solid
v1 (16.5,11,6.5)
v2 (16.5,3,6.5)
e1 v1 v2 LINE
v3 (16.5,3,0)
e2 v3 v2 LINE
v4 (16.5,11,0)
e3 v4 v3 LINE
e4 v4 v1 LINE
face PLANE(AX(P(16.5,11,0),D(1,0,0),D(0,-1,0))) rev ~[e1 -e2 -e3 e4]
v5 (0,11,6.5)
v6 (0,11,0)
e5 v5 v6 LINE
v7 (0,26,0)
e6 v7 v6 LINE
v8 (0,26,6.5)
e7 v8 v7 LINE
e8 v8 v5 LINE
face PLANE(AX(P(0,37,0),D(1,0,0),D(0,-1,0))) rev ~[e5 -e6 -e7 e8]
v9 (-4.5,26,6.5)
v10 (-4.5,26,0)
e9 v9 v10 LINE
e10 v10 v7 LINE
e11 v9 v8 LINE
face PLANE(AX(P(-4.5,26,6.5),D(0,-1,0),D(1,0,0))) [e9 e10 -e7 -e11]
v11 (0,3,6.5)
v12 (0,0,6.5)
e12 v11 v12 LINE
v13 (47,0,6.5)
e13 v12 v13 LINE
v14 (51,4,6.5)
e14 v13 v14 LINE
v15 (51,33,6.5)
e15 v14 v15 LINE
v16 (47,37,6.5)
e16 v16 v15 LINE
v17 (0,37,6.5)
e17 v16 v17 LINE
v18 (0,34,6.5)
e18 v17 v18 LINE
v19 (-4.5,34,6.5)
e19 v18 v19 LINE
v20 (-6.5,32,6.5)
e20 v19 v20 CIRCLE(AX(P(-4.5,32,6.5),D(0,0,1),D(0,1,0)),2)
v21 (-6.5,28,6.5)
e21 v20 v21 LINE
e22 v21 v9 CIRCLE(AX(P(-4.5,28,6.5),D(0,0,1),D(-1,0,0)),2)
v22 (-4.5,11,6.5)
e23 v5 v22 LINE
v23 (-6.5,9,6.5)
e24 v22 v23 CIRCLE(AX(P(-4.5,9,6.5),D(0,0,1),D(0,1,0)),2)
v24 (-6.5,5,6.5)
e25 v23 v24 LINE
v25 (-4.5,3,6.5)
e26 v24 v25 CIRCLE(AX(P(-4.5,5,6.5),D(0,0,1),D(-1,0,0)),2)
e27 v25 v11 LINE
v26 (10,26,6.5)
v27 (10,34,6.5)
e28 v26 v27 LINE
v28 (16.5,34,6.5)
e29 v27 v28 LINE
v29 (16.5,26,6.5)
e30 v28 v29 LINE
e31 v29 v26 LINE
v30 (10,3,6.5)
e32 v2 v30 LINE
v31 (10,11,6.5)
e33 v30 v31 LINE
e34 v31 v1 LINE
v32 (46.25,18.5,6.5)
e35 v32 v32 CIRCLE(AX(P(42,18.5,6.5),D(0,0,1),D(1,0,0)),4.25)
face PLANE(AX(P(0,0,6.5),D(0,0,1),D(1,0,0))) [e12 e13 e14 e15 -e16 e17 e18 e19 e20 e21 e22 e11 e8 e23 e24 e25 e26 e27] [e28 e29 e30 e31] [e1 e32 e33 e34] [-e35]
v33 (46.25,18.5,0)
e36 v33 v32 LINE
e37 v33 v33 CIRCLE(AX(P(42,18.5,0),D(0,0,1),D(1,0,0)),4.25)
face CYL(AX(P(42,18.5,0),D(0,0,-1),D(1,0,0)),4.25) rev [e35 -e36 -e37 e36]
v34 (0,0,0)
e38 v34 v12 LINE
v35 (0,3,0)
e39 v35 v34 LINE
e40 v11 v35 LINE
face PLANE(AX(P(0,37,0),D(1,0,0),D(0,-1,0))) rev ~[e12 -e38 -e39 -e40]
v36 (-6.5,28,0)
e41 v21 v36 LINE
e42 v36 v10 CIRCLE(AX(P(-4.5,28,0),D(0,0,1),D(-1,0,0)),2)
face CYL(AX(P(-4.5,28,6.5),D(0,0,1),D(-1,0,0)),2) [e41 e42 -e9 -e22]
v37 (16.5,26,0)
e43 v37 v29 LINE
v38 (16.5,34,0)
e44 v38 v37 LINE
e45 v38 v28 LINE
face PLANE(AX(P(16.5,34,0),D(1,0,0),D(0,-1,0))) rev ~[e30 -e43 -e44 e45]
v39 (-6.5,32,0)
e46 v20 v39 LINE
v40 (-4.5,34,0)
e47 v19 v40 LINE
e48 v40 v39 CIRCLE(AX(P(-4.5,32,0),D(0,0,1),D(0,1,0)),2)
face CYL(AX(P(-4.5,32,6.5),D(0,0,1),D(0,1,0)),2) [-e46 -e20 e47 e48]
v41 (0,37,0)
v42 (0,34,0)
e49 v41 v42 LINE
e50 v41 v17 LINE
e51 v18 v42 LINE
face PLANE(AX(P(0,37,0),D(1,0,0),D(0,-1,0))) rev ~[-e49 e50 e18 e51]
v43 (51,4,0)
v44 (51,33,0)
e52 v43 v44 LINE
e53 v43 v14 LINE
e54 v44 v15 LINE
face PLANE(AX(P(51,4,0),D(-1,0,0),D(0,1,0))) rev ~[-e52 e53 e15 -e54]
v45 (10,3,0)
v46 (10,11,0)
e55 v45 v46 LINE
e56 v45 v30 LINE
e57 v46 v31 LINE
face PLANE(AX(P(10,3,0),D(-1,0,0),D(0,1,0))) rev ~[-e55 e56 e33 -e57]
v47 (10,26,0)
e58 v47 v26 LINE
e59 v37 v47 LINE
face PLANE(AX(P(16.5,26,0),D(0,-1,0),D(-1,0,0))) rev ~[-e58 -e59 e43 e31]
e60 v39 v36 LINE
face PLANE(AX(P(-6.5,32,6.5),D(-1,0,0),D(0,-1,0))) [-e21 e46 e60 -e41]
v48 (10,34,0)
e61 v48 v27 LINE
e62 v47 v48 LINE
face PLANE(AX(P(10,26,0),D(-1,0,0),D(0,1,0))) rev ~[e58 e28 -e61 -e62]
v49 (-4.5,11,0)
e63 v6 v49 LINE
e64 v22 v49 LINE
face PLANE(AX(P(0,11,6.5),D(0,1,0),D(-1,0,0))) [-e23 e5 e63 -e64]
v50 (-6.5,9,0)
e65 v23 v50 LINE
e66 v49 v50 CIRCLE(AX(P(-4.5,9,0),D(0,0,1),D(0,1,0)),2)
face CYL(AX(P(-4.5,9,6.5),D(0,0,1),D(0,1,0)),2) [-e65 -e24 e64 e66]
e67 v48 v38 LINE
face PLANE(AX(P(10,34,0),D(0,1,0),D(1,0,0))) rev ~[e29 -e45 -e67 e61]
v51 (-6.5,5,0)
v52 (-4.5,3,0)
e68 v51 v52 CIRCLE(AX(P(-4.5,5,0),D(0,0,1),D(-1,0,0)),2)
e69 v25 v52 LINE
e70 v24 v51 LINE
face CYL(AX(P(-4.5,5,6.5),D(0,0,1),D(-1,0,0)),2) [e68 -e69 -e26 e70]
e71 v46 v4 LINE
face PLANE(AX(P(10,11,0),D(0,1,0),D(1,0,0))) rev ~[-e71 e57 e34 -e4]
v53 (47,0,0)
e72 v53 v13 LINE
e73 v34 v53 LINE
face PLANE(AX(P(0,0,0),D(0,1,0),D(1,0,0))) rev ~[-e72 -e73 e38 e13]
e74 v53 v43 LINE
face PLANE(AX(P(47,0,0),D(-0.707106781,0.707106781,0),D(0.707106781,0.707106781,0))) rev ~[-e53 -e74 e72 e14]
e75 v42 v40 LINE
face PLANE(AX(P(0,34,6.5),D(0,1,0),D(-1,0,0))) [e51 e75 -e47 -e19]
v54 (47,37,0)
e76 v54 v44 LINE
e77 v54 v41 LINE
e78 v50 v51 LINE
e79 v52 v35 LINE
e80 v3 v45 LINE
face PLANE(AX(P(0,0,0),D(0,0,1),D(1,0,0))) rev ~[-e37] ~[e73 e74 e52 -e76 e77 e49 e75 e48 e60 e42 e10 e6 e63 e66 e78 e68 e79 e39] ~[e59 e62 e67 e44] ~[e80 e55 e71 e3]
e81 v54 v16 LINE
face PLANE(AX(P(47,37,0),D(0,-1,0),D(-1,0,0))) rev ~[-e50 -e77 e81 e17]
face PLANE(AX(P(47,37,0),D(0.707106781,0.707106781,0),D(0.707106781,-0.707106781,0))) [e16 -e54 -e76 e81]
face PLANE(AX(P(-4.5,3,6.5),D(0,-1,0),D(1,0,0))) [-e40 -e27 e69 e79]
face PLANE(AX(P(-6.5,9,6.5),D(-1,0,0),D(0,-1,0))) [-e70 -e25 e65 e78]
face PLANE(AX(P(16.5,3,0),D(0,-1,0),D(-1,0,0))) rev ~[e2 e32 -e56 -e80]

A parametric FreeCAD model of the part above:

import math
import FreeCAD as App
import Part
import Sketcher

V = App.Vector
Q = App.Units.Quantity

doc = App.newDocument("Part")
body = doc.addObject("PartDesign::Body", "Body")

# Sketch on XY plane
sketch1 = body.newObject("Sketcher::SketchObject", "Sketch")
sketch1.AttachmentSupport = (doc.getObject("XY_Plane"), [""])
sketch1.MapMode = "FlatFace"
sketch1.addGeometry(Part.LineSegment(V(0, 37, 0), V(0, 0, 0)), False)
sketch1.addGeometry(Part.LineSegment(V(0, 0, 0), V(47, 0, 0)), False)
sketch1.addGeometry(Part.LineSegment(V(47, 0, 0), V(51, 4, 0)), False)
sketch1.addGeometry(Part.LineSegment(V(51, 4, 0), V(51, 33, 0)), False)
sketch1.addGeometry(Part.LineSegment(V(51, 33, 0), V(47, 37, 0)), False)
sketch1.addGeometry(Part.LineSegment(V(47, 37, 0), V(0, 37, 0)), False)
sketch1.addGeometry(Part.LineSegment(V(10, 3, 0), V(10, 11, 0)), False)
sketch1.addGeometry(Part.LineSegment(V(10, 11, 0), V(16.5, 11, 0)), False)
sketch1.addGeometry(Part.LineSegment(V(16.5, 11, 0), V(16.5, 3, 0)), False)
sketch1.addGeometry(Part.LineSegment(V(16.5, 3, 0), V(10, 3, 0)), False)
sketch1.addGeometry(Part.LineSegment(V(10, 26, 0), V(10, 34, 0)), False)
sketch1.addGeometry(Part.LineSegment(V(10, 34, 0), V(16.5, 34, 0)), False)
sketch1.addGeometry(Part.LineSegment(V(16.5, 34, 0), V(16.5, 26, 0)), False)
sketch1.addGeometry(Part.LineSegment(V(16.5, 26, 0), V(10, 26, 0)), False)
sketch1.addGeometry(Part.Circle(V(42, 18.5, 0), V(0, 0, 1), 4.25), False)
sketch1.addConstraint(Sketcher.Constraint("Coincident", 0, 2, 1, 1))
sketch1.addConstraint(Sketcher.Constraint("Coincident", 1, 2, 2, 1))
sketch1.addConstraint(Sketcher.Constraint("Coincident", 2, 2, 3, 1))
sketch1.addConstraint(Sketcher.Constraint("Coincident", 3, 2, 4, 1))
sketch1.addConstraint(Sketcher.Constraint("Coincident", 4, 2, 5, 1))
sketch1.addConstraint(Sketcher.Constraint("Coincident", 5, 2, 0, 1))
sketch1.addConstraint(Sketcher.Constraint("Coincident", 6, 2, 7, 1))
sketch1.addConstraint(Sketcher.Constraint("Coincident", 7, 2, 8, 1))
sketch1.addConstraint(Sketcher.Constraint("Coincident", 8, 2, 9, 1))
sketch1.addConstraint(Sketcher.Constraint("Coincident", 9, 2, 6, 1))
sketch1.addConstraint(Sketcher.Constraint("Coincident", 10, 2, 11, 1))
sketch1.addConstraint(Sketcher.Constraint("Coincident", 11, 2, 12, 1))
sketch1.addConstraint(Sketcher.Constraint("Coincident", 12, 2, 13, 1))
sketch1.addConstraint(Sketcher.Constraint("Coincident", 13, 2, 10, 1))
sketch1.addConstraint(Sketcher.Constraint("Vertical", 0))
sketch1.addConstraint(Sketcher.Constraint("Horizontal", 1))
sketch1.addConstraint(Sketcher.Constraint("Vertical", 3))
sketch1.addConstraint(Sketcher.Constraint("Horizontal", 5))
sketch1.addConstraint(Sketcher.Constraint("Vertical", 6))
sketch1.addConstraint(Sketcher.Constraint("Horizontal", 7))
sketch1.addConstraint(Sketcher.Constraint("Vertical", 8))
sketch1.addConstraint(Sketcher.Constraint("Horizontal", 9))
sketch1.addConstraint(Sketcher.Constraint("Vertical", 10))
sketch1.addConstraint(Sketcher.Constraint("Horizontal", 11))
sketch1.addConstraint(Sketcher.Constraint("Vertical", 12))
sketch1.addConstraint(Sketcher.Constraint("Horizontal", 13))
sketch1.addConstraint(Sketcher.Constraint("Coincident", 0, 2, -1, 1))
sketch1.addConstraint(Sketcher.Constraint("Perpendicular", 2, 4))
sketch1.addConstraint(Sketcher.Constraint("Vertical", 1, 2, 4, 2))
sketch1.addConstraint(Sketcher.Constraint("Vertical", 9, 2, 10, 2))
sketch1.addConstraint(Sketcher.Constraint("Vertical", 8, 2, 11, 2))
sketch1.addConstraint(Sketcher.Constraint("Equal", 8, 10))
sketch1.addConstraint(Sketcher.Constraint("Equal", 2, 4))
sketch1.addConstraint(Sketcher.Constraint("Diameter", 14, Q("8.5 mm")))
sketch1.addConstraint(Sketcher.Constraint("DistanceY", 0, 2, 0, 1, Q("37 mm")))
sketch1.addConstraint(Sketcher.Constraint("DistanceY", 6, 1, 6, 2, Q("8 mm")))
sketch1.addConstraint(Sketcher.Constraint("DistanceX", 7, 1, 7, 2, Q("6.5 mm")))
sketch1.addConstraint(Sketcher.Constraint("DistanceX", -1, 1, 14, 3, Q("42 mm")))
sketch1.addConstraint(Sketcher.Constraint("DistanceY", -1, 1, 2, 2, Q("4 mm")))
sketch1.addConstraint(Sketcher.Constraint("DistanceX", -1, 1, 6, 2, Q("10 mm")))
sketch1.addConstraint(Sketcher.Constraint("DistanceX", 14, 3, 2, 2, Q("9 mm")))
sketch1.addConstraint(Sketcher.Constraint("DistanceY", 7, 2, 12, 2, Q("15 mm")))
sketch1.addConstraint(Sketcher.Constraint("DistanceY", -1, 1, 6, 2, Q("11 mm")))
sketch1.addConstraint(Sketcher.Constraint("DistanceY", -1, 1, 14, 3, Q("18.5 mm")))
pad1 = body.newObject("PartDesign::Pad", "Pad")
pad1.Profile = sketch1
pad1.Length = 6.5

# Sketch on XY plane
sketch2 = body.newObject("Sketcher::SketchObject", "Sketch001")
sketch2.AttachmentSupport = (doc.getObject("XY_Plane"), [""])
sketch2.MapMode = "FlatFace"
sketch2.AttachmentOffset = App.Placement(V(0, 0, 6.5), App.Rotation())
sketch2.addGeometry(Part.LineSegment(V(0, 3, 0), V(0, 11, 0)), False)
sketch2.addGeometry(Part.LineSegment(V(0, 11, 0), V(-4.5, 11, 0)), False)
sketch2.addGeometry(Part.ArcOfCircle(Part.Circle(V(-4.5, 9, 0), V(0, 0, 1), 2), math.radians(90), math.radians(180)), False)
sketch2.addGeometry(Part.LineSegment(V(-6.5, 9, 0), V(-6.5, 5, 0)), False)
sketch2.addGeometry(Part.ArcOfCircle(Part.Circle(V(-4.5, 5, 0), V(0, 0, 1), 2), math.radians(180), math.radians(270)), False)
sketch2.addGeometry(Part.LineSegment(V(-4.5, 3, 0), V(0, 3, 0)), False)
sketch2.addGeometry(Part.LineSegment(V(0, 26, 0), V(0, 34, 0)), False)
sketch2.addGeometry(Part.LineSegment(V(0, 34, 0), V(-4.5, 34, 0)), False)
sketch2.addGeometry(Part.ArcOfCircle(Part.Circle(V(-4.5, 32, 0), V(0, 0, 1), 2), math.radians(90), math.radians(180)), False)
sketch2.addGeometry(Part.LineSegment(V(-6.5, 32, 0), V(-6.5, 28, 0)), False)
sketch2.addGeometry(Part.ArcOfCircle(Part.Circle(V(-4.5, 28, 0), V(0, 0, 1), 2), math.radians(180), math.radians(270)), False)
sketch2.addGeometry(Part.LineSegment(V(-4.5, 26, 0), V(0, 26, 0)), False)
sketch2.addConstraint(Sketcher.Constraint("Coincident", 0, 2, 1, 1))
sketch2.addConstraint(Sketcher.Constraint("Tangent", 1, 2, 2, 1))
sketch2.addConstraint(Sketcher.Constraint("Tangent", 2, 2, 3, 1))
sketch2.addConstraint(Sketcher.Constraint("Tangent", 3, 2, 4, 1))
sketch2.addConstraint(Sketcher.Constraint("Tangent", 4, 2, 5, 1))
sketch2.addConstraint(Sketcher.Constraint("Coincident", 5, 2, 0, 1))
sketch2.addConstraint(Sketcher.Constraint("Coincident", 6, 2, 7, 1))
sketch2.addConstraint(Sketcher.Constraint("Tangent", 7, 2, 8, 1))
sketch2.addConstraint(Sketcher.Constraint("Tangent", 8, 2, 9, 1))
sketch2.addConstraint(Sketcher.Constraint("Tangent", 9, 2, 10, 1))
sketch2.addConstraint(Sketcher.Constraint("Tangent", 10, 2, 11, 1))
sketch2.addConstraint(Sketcher.Constraint("Coincident", 11, 2, 6, 1))
sketch2.addConstraint(Sketcher.Constraint("Vertical", 0))
sketch2.addConstraint(Sketcher.Constraint("Horizontal", 1))
sketch2.addConstraint(Sketcher.Constraint("Vertical", 3))
sketch2.addConstraint(Sketcher.Constraint("Horizontal", 5))
sketch2.addConstraint(Sketcher.Constraint("Vertical", 6))
sketch2.addConstraint(Sketcher.Constraint("Horizontal", 7))
sketch2.addConstraint(Sketcher.Constraint("Vertical", 9))
sketch2.addConstraint(Sketcher.Constraint("Horizontal", 11))
sketch2.addConstraint(Sketcher.Constraint("Equal", 2, 4))
sketch2.addConstraint(Sketcher.Constraint("Equal", 4, 8))
sketch2.addConstraint(Sketcher.Constraint("Equal", 8, 10))
sketch2.addConstraint(Sketcher.Constraint("PointOnObject", 0, 2, -2))
sketch2.addConstraint(Sketcher.Constraint("PointOnObject", 6, 2, -2))
sketch2.addConstraint(Sketcher.Constraint("Vertical", 4, 3, 8, 3))
sketch2.addConstraint(Sketcher.Constraint("Equal", 0, 6))
sketch2.addConstraint(Sketcher.Constraint("Radius", 2, Q("2 mm")))
sketch2.addConstraint(Sketcher.Constraint("DistanceY", 0, 1, 0, 2, Q("8 mm")))
sketch2.addConstraint(Sketcher.Constraint("DistanceX", 2, 2, -1, 1, Q("6.5 mm")))
sketch2.addConstraint(Sketcher.Constraint("DistanceY", -1, 1, 2, 3, Q("9 mm")))
sketch2.addConstraint(Sketcher.Constraint("DistanceY", -1, 1, 8, 3, Q("32 mm")))
pad2 = body.newObject("PartDesign::Pad", "Pad001")
pad2.Profile = sketch2
pad2.Length = 6.5
pad2.Reversed = True

doc.recompute()
